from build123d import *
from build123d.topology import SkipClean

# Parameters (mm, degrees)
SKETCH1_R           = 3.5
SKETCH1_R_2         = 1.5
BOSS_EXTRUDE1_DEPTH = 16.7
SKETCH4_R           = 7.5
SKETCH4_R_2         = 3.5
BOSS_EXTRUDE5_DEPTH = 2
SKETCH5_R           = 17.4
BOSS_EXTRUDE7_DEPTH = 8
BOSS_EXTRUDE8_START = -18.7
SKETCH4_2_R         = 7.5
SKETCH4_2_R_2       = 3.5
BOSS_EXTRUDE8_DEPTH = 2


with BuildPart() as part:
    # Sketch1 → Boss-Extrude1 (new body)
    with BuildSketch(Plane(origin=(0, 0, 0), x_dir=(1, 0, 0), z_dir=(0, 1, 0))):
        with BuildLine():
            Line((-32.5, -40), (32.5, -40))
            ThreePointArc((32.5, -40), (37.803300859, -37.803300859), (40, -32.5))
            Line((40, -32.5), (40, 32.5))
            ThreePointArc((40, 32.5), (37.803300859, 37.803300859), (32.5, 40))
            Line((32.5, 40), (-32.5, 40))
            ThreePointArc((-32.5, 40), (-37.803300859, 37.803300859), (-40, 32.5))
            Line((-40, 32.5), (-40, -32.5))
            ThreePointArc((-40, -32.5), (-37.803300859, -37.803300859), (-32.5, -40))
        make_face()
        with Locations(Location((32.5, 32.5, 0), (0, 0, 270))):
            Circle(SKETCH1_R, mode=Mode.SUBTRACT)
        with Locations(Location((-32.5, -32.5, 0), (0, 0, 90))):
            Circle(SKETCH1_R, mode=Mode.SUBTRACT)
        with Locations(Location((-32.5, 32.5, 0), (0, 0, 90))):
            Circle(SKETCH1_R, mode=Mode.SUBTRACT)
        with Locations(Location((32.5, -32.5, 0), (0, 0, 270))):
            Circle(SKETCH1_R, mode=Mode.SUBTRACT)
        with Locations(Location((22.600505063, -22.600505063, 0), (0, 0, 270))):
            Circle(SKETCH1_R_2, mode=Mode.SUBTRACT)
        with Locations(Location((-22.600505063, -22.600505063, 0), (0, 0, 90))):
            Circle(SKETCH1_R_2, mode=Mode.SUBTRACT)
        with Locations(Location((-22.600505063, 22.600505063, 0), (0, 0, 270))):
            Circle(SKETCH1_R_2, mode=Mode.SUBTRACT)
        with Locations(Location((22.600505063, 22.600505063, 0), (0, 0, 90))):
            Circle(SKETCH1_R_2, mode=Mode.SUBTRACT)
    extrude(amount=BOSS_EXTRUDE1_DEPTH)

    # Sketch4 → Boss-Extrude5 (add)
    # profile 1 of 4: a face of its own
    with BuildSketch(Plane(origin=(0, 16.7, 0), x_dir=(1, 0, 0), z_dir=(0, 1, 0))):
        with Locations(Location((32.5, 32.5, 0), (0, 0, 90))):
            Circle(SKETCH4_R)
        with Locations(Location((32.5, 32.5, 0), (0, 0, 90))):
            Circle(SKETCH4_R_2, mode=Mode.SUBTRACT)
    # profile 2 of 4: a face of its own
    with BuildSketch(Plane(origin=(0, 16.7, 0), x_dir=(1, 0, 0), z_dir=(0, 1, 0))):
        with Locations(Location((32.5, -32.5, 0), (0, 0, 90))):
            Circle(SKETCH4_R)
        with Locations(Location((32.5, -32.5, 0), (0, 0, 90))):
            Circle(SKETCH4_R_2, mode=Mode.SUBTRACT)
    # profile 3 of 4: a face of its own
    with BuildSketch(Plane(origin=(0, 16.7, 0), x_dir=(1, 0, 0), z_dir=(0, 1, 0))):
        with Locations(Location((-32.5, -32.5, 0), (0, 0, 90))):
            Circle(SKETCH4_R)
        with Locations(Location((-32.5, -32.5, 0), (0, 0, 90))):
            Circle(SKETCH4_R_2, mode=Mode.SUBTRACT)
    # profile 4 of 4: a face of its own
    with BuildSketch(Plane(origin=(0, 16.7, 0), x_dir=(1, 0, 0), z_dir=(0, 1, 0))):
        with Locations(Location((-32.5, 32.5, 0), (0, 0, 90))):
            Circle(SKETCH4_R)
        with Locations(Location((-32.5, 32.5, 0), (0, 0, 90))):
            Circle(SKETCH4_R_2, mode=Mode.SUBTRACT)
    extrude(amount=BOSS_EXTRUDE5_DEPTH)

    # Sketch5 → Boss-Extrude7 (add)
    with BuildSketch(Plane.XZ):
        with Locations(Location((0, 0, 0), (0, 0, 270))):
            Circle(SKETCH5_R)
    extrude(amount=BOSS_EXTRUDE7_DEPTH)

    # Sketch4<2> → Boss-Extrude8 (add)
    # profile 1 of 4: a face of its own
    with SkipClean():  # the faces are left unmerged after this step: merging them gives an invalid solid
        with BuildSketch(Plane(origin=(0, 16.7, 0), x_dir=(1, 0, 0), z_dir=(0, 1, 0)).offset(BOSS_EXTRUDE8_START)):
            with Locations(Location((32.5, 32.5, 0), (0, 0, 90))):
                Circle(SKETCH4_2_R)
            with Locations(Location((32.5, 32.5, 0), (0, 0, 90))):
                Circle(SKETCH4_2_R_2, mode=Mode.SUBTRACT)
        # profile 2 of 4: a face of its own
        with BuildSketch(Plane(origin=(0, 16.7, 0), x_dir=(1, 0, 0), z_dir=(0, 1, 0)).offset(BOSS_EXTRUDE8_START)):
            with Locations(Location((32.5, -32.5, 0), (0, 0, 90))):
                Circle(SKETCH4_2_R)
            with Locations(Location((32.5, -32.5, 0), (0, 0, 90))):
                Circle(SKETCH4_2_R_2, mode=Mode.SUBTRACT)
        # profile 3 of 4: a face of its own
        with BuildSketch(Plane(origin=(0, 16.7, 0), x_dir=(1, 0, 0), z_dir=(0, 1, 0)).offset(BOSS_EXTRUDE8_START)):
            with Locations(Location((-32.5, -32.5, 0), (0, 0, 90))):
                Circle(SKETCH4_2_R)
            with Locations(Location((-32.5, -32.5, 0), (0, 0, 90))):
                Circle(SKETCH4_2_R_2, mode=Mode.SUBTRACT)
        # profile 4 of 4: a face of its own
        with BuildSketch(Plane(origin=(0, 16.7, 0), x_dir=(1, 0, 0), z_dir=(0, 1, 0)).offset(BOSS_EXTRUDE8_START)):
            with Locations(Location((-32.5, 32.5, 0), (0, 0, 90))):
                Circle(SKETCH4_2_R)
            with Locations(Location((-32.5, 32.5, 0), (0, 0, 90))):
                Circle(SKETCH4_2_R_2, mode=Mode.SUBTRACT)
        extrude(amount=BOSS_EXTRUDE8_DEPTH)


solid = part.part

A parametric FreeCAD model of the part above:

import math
import FreeCAD as App
import Part
import Sketcher

doc = App.newDocument("Part")
params = doc.addObject("Spreadsheet::Sheet", "Params")
for row, (alias, value) in enumerate([
    ("sketch1_diameter", "7 mm"),
    ("sketch1_diameter2", "3 mm"),
    ("sketch1_radius", "7.5 mm"),
    ("sketch1_width", "65 mm"),
    ("pad1_length", "16.7 mm"),
    ("sketch2_diameter", "15 mm"),
    ("sketch2_diameter2", "7 mm"),
    ("pad2_length", "2 mm"),
    ("sketch3_diameter", "34.8 mm"),
    ("pad3_length", "8 mm"),
    ("sketch4_diameter", "15 mm"),
    ("sketch4_diameter2", "7 mm"),
    ("pad4_length", "2 mm"),
], start=1):
    params.set(f"A{row}", alias)
    params.set(f"B{row}", "=" + value)
    params.setAlias(f"B{row}", alias)

body = doc.addObject("PartDesign::Body", "Body")

sketch1 = body.newObject("Sketcher::SketchObject", "Sketch")
sketch1.AttachmentSupport = (doc.getObject("XZ_Plane"), [""])
sketch1.MapMode = "FlatFace"
sketch1.addGeometry([
    Part.LineSegment(App.Vector(-32.5, 40, 0), App.Vector(32.5, 40, 0)),
    Part.ArcOfCircle(Part.Circle(App.Vector(32.5, 32.5, 0), App.Vector(0, 0, 1), 7.5), math.radians(0), math.radians(90)),
    Part.LineSegment(App.Vector(40, 32.5, 0), App.Vector(40, -32.5, 0)),
    Part.ArcOfCircle(Part.Circle(App.Vector(32.5, -32.5, 0), App.Vector(0, 0, 1), 7.5), math.radians(-90), math.radians(0)),
    Part.LineSegment(App.Vector(32.5, -40, 0), App.Vector(-32.5, -40, 0)),
    Part.ArcOfCircle(Part.Circle(App.Vector(-32.5, -32.5, 0), App.Vector(0, 0, 1), 7.5), math.radians(180), math.radians(270)),
    Part.LineSegment(App.Vector(-40, -32.5, 0), App.Vector(-40, 32.5, 0)),
    Part.ArcOfCircle(Part.Circle(App.Vector(-32.5, 32.5, 0), App.Vector(0, 0, 1), 7.5), math.radians(90), math.radians(180)),
    Part.Circle(App.Vector(-32.5, 32.5, 0), App.Vector(0, 0, 1), 3.5),
    Part.Circle(App.Vector(-22.6, 22.6, 0), App.Vector(0, 0, 1), 1.5),
    Part.Circle(App.Vector(32.5, 32.5, 0), App.Vector(0, 0, 1), 3.5),
    Part.Circle(App.Vector(22.6, 22.6, 0), App.Vector(0, 0, 1), 1.5),
    Part.Circle(App.Vector(-22.6, -22.6, 0), App.Vector(0, 0, 1), 1.5),
    Part.Circle(App.Vector(-32.5, -32.5, 0), App.Vector(0, 0, 1), 3.5),
    Part.Circle(App.Vector(22.6, -22.6, 0), App.Vector(0, 0, 1), 1.5),
    Part.Circle(App.Vector(32.5, -32.5, 0), App.Vector(0, 0, 1), 3.5),
], False)
sketch1.addConstraint([
    Sketcher.Constraint("Tangent", 0, 2, 1, 2),
    Sketcher.Constraint("Tangent", 1, 1, 2, 1),
    Sketcher.Constraint("Tangent", 2, 2, 3, 2),
    Sketcher.Constraint("Tangent", 3, 1, 4, 1),
    Sketcher.Constraint("Tangent", 4, 2, 5, 2),
    Sketcher.Constraint("Tangent", 5, 1, 6, 1),
    Sketcher.Constraint("Tangent", 6, 2, 7, 2),
    Sketcher.Constraint("Tangent", 7, 1, 0, 1),
    Sketcher.Constraint("Horizontal", 0),
    Sketcher.Constraint("Vertical", 2),
    Sketcher.Constraint("Horizontal", 4),
    Sketcher.Constraint("Vertical", 6),
    Sketcher.Constraint("Coincident", 8, 3, 7, 3),
    Sketcher.Constraint("Coincident", 10, 3, 1, 3),
    Sketcher.Constraint("Coincident", 13, 3, 5, 3),
    Sketcher.Constraint("Coincident", 15, 3, 3, 3),
    Sketcher.Constraint("Equal", 1, 3),
    Sketcher.Constraint("Equal", 3, 5),
    Sketcher.Constraint("Equal", 5, 7),
    Sketcher.Constraint("Equal", 8, 10),
    Sketcher.Constraint("Equal", 9, 11),
    Sketcher.Constraint("Equal", 11, 12),
    Sketcher.Constraint("Equal", 10, 13),
    Sketcher.Constraint("Equal", 12, 14),
    Sketcher.Constraint("Equal", 13, 15),
    Sketcher.Constraint("Symmetric", 1, 3, 5, 3, -1, 1),
    Sketcher.Constraint("Symmetric", 11, 3, 12, 3, -1, 1),
    Sketcher.Constraint("Symmetric", 9, 3, 14, 3, -1, 1),
    Sketcher.Constraint("Symmetric", 9, 3, 11, 3, -2),
    Sketcher.Constraint("Equal", 4, 2),
    Sketcher.Constraint("Diameter", 8, 7.0),
    Sketcher.Constraint("Diameter", 9, 3.0),
    Sketcher.Constraint("Radius", 1, 7.5),
    Sketcher.Constraint("DistanceX", 0, 1, 0, 2, 65.0),
    Sketcher.Constraint("DistanceX", 9, 3, 11, 3, 45.20101),
    Sketcher.Constraint("DistanceY", 12, 3, 9, 3, 45.20101),
])
sketch1.setExpression("Constraints[30]", "Params.sketch1_diameter")
sketch1.setExpression("Constraints[31]", "Params.sketch1_diameter2")
sketch1.setExpression("Constraints[32]", "Params.sketch1_radius")
sketch1.setExpression("Constraints[33]", "Params.sketch1_width")
pad1 = body.newObject("PartDesign::Pad", "Pad")
pad1.Profile = sketch1
pad1.setExpression("Length", "Params.pad1_length")
pad1.Reversed = True

sketch2 = body.newObject("Sketcher::SketchObject", "Sketch001")
sketch2.AttachmentSupport = (doc.getObject("XZ_Plane"), [""])
sketch2.MapMode = "FlatFace"
sketch2.AttachmentOffset = App.Placement(App.Vector(0, 0, -16.7), App.Rotation())
sketch2.addGeometry([
    Part.Circle(App.Vector(32.5, -32.5, 0), App.Vector(0, 0, 1), 7.5),
    Part.Circle(App.Vector(32.5, -32.5, 0), App.Vector(0, 0, 1), 3.5),
    Part.Circle(App.Vector(32.5, 32.5, 0), App.Vector(0, 0, 1), 7.5),
    Part.Circle(App.Vector(32.5, 32.5, 0), App.Vector(0, 0, 1), 3.5),
    Part.Circle(App.Vector(-32.5, 32.5, 0), App.Vector(0, 0, 1), 7.5),
    Part.Circle(App.Vector(-32.5, 32.5, 0), App.Vector(0, 0, 1), 3.5),
    Part.Circle(App.Vector(-32.5, -32.5, 0), App.Vector(0, 0, 1), 7.5),
    Part.Circle(App.Vector(-32.5, -32.5, 0), App.Vector(0, 0, 1), 3.5),
], False)
sketch2.addConstraint([
    Sketcher.Constraint("Coincident", 1, 3, 0, 3),
    Sketcher.Constraint("Coincident", 3, 3, 2, 3),
    Sketcher.Constraint("Coincident", 5, 3, 4, 3),
    Sketcher.Constraint("Coincident", 7, 3, 6, 3),
    Sketcher.Constraint("Equal", 0, 2),
    Sketcher.Constraint("Equal", 1, 3),
    Sketcher.Constraint("Equal", 2, 4),
    Sketcher.Constraint("Equal", 3, 5),
    Sketcher.Constraint("Equal", 4, 6),
    Sketcher.Constraint("Equal", 5, 7),
    Sketcher.Constraint("Symmetric", 0, 3, 4, 3, -1, 1),
    Sketcher.Constraint("Symmetric", 2, 3, 6, 3, -1, 1),
    Sketcher.Constraint("Symmetric", 2, 3, 4, 3, -2),
    Sketcher.Constraint("Diameter", 0, 15.0),
    Sketcher.Constraint("Diameter", 1, 7.0),
    Sketcher.Constraint("DistanceY", 0, 3, 2, 3, 65.0),
    Sketcher.Constraint("DistanceX", 4, 3, 2, 3, 65.0),
])
sketch2.setExpression("Constraints[13]", "Params.sketch2_diameter")
sketch2.setExpression("Constraints[14]", "Params.sketch2_diameter2")
pad2 = body.newObject("PartDesign::Pad", "Pad001")
pad2.Profile = sketch2
pad2.setExpression("Length", "Params.pad2_length")
pad2.Reversed = True

sketch3 = body.newObject("Sketcher::SketchObject", "Sketch002")
sketch3.AttachmentSupport = (doc.getObject("XZ_Plane"), [""])
sketch3.MapMode = "FlatFace"
sketch3.addGeometry(Part.Circle(App.Vector(0, 0, 0), App.Vector(0, 0, 1), 17), False)
sketch3.addConstraint([
    Sketcher.Constraint("Coincident", 0, 3, -1, 1),
    Sketcher.Constraint("Diameter", 0, 34.8),
])
sketch3.setExpression("Constraints[1]", "Params.sketch3_diameter")
pad3 = body.newObject("PartDesign::Pad", "Pad002")
pad3.Profile = sketch3
pad3.setExpression("Length", "Params.pad3_length")

sketch4 = body.newObject("Sketcher::SketchObject", "Sketch003")
sketch4.AttachmentSupport = (doc.getObject("XZ_Plane"), [""])
sketch4.MapMode = "FlatFace"
sketch4.AttachmentOffset = App.Placement(App.Vector(0, 0, 2), App.Rotation())
sketch4.addGeometry([
    Part.Circle(App.Vector(32.5, -32.5, 0), App.Vector(0, 0, 1), 7.5),
    Part.Circle(App.Vector(32.5, -32.5, 0), App.Vector(0, 0, 1), 3.5),
    Part.Circle(App.Vector(32.5, 32.5, 0), App.Vector(0, 0, 1), 7.5),
    Part.Circle(App.Vector(32.5, 32.5, 0), App.Vector(0, 0, 1), 3.5),
    Part.Circle(App.Vector(-32.5, 32.5, 0), App.Vector(0, 0, 1), 7.5),
    Part.Circle(App.Vector(-32.5, 32.5, 0), App.Vector(0, 0, 1), 3.5),
    Part.Circle(App.Vector(-32.5, -32.5, 0), App.Vector(0, 0, 1), 7.5),
    Part.Circle(App.Vector(-32.5, -32.5, 0), App.Vector(0, 0, 1), 3.5),
], False)
sketch4.addConstraint([
    Sketcher.Constraint("Coincident", 1, 3, 0, 3),
    Sketcher.Constraint("Coincident", 3, 3, 2, 3),
    Sketcher.Constraint("Coincident", 5, 3, 4, 3),
    Sketcher.Constraint("Coincident", 7, 3, 6, 3),
    Sketcher.Constraint("Equal", 0, 2),
    Sketcher.Constraint("Equal", 1, 3),
    Sketcher.Constraint("Equal", 2, 4),
    Sketcher.Constraint("Equal", 3, 5),
    Sketcher.Constraint("Equal", 4, 6),
    Sketcher.Constraint("Equal", 5, 7),
    Sketcher.Constraint("Symmetric", 0, 3, 4, 3, -1, 1),
    Sketcher.Constraint("Symmetric", 2, 3, 6, 3, -1, 1),
    Sketcher.Constraint("Symmetric", 2, 3, 4, 3, -2),
    Sketcher.Constraint("Diameter", 0, 15.0),
    Sketcher.Constraint("Diameter", 1, 7.0),
    Sketcher.Constraint("DistanceY", 0, 3, 2, 3, 65.0),
    Sketcher.Constraint("DistanceX", 4, 3, 2, 3, 65.0),
])
sketch4.setExpression("Constraints[13]", "Params.sketch4_diameter")
sketch4.setExpression("Constraints[14]", "Params.sketch4_diameter2")
pad4 = body.newObject("PartDesign::Pad", "Pad003")
pad4.Profile = sketch4
pad4.setExpression("Length", "Params.pad4_length")
pad4.Reversed = True

doc.recompute()
